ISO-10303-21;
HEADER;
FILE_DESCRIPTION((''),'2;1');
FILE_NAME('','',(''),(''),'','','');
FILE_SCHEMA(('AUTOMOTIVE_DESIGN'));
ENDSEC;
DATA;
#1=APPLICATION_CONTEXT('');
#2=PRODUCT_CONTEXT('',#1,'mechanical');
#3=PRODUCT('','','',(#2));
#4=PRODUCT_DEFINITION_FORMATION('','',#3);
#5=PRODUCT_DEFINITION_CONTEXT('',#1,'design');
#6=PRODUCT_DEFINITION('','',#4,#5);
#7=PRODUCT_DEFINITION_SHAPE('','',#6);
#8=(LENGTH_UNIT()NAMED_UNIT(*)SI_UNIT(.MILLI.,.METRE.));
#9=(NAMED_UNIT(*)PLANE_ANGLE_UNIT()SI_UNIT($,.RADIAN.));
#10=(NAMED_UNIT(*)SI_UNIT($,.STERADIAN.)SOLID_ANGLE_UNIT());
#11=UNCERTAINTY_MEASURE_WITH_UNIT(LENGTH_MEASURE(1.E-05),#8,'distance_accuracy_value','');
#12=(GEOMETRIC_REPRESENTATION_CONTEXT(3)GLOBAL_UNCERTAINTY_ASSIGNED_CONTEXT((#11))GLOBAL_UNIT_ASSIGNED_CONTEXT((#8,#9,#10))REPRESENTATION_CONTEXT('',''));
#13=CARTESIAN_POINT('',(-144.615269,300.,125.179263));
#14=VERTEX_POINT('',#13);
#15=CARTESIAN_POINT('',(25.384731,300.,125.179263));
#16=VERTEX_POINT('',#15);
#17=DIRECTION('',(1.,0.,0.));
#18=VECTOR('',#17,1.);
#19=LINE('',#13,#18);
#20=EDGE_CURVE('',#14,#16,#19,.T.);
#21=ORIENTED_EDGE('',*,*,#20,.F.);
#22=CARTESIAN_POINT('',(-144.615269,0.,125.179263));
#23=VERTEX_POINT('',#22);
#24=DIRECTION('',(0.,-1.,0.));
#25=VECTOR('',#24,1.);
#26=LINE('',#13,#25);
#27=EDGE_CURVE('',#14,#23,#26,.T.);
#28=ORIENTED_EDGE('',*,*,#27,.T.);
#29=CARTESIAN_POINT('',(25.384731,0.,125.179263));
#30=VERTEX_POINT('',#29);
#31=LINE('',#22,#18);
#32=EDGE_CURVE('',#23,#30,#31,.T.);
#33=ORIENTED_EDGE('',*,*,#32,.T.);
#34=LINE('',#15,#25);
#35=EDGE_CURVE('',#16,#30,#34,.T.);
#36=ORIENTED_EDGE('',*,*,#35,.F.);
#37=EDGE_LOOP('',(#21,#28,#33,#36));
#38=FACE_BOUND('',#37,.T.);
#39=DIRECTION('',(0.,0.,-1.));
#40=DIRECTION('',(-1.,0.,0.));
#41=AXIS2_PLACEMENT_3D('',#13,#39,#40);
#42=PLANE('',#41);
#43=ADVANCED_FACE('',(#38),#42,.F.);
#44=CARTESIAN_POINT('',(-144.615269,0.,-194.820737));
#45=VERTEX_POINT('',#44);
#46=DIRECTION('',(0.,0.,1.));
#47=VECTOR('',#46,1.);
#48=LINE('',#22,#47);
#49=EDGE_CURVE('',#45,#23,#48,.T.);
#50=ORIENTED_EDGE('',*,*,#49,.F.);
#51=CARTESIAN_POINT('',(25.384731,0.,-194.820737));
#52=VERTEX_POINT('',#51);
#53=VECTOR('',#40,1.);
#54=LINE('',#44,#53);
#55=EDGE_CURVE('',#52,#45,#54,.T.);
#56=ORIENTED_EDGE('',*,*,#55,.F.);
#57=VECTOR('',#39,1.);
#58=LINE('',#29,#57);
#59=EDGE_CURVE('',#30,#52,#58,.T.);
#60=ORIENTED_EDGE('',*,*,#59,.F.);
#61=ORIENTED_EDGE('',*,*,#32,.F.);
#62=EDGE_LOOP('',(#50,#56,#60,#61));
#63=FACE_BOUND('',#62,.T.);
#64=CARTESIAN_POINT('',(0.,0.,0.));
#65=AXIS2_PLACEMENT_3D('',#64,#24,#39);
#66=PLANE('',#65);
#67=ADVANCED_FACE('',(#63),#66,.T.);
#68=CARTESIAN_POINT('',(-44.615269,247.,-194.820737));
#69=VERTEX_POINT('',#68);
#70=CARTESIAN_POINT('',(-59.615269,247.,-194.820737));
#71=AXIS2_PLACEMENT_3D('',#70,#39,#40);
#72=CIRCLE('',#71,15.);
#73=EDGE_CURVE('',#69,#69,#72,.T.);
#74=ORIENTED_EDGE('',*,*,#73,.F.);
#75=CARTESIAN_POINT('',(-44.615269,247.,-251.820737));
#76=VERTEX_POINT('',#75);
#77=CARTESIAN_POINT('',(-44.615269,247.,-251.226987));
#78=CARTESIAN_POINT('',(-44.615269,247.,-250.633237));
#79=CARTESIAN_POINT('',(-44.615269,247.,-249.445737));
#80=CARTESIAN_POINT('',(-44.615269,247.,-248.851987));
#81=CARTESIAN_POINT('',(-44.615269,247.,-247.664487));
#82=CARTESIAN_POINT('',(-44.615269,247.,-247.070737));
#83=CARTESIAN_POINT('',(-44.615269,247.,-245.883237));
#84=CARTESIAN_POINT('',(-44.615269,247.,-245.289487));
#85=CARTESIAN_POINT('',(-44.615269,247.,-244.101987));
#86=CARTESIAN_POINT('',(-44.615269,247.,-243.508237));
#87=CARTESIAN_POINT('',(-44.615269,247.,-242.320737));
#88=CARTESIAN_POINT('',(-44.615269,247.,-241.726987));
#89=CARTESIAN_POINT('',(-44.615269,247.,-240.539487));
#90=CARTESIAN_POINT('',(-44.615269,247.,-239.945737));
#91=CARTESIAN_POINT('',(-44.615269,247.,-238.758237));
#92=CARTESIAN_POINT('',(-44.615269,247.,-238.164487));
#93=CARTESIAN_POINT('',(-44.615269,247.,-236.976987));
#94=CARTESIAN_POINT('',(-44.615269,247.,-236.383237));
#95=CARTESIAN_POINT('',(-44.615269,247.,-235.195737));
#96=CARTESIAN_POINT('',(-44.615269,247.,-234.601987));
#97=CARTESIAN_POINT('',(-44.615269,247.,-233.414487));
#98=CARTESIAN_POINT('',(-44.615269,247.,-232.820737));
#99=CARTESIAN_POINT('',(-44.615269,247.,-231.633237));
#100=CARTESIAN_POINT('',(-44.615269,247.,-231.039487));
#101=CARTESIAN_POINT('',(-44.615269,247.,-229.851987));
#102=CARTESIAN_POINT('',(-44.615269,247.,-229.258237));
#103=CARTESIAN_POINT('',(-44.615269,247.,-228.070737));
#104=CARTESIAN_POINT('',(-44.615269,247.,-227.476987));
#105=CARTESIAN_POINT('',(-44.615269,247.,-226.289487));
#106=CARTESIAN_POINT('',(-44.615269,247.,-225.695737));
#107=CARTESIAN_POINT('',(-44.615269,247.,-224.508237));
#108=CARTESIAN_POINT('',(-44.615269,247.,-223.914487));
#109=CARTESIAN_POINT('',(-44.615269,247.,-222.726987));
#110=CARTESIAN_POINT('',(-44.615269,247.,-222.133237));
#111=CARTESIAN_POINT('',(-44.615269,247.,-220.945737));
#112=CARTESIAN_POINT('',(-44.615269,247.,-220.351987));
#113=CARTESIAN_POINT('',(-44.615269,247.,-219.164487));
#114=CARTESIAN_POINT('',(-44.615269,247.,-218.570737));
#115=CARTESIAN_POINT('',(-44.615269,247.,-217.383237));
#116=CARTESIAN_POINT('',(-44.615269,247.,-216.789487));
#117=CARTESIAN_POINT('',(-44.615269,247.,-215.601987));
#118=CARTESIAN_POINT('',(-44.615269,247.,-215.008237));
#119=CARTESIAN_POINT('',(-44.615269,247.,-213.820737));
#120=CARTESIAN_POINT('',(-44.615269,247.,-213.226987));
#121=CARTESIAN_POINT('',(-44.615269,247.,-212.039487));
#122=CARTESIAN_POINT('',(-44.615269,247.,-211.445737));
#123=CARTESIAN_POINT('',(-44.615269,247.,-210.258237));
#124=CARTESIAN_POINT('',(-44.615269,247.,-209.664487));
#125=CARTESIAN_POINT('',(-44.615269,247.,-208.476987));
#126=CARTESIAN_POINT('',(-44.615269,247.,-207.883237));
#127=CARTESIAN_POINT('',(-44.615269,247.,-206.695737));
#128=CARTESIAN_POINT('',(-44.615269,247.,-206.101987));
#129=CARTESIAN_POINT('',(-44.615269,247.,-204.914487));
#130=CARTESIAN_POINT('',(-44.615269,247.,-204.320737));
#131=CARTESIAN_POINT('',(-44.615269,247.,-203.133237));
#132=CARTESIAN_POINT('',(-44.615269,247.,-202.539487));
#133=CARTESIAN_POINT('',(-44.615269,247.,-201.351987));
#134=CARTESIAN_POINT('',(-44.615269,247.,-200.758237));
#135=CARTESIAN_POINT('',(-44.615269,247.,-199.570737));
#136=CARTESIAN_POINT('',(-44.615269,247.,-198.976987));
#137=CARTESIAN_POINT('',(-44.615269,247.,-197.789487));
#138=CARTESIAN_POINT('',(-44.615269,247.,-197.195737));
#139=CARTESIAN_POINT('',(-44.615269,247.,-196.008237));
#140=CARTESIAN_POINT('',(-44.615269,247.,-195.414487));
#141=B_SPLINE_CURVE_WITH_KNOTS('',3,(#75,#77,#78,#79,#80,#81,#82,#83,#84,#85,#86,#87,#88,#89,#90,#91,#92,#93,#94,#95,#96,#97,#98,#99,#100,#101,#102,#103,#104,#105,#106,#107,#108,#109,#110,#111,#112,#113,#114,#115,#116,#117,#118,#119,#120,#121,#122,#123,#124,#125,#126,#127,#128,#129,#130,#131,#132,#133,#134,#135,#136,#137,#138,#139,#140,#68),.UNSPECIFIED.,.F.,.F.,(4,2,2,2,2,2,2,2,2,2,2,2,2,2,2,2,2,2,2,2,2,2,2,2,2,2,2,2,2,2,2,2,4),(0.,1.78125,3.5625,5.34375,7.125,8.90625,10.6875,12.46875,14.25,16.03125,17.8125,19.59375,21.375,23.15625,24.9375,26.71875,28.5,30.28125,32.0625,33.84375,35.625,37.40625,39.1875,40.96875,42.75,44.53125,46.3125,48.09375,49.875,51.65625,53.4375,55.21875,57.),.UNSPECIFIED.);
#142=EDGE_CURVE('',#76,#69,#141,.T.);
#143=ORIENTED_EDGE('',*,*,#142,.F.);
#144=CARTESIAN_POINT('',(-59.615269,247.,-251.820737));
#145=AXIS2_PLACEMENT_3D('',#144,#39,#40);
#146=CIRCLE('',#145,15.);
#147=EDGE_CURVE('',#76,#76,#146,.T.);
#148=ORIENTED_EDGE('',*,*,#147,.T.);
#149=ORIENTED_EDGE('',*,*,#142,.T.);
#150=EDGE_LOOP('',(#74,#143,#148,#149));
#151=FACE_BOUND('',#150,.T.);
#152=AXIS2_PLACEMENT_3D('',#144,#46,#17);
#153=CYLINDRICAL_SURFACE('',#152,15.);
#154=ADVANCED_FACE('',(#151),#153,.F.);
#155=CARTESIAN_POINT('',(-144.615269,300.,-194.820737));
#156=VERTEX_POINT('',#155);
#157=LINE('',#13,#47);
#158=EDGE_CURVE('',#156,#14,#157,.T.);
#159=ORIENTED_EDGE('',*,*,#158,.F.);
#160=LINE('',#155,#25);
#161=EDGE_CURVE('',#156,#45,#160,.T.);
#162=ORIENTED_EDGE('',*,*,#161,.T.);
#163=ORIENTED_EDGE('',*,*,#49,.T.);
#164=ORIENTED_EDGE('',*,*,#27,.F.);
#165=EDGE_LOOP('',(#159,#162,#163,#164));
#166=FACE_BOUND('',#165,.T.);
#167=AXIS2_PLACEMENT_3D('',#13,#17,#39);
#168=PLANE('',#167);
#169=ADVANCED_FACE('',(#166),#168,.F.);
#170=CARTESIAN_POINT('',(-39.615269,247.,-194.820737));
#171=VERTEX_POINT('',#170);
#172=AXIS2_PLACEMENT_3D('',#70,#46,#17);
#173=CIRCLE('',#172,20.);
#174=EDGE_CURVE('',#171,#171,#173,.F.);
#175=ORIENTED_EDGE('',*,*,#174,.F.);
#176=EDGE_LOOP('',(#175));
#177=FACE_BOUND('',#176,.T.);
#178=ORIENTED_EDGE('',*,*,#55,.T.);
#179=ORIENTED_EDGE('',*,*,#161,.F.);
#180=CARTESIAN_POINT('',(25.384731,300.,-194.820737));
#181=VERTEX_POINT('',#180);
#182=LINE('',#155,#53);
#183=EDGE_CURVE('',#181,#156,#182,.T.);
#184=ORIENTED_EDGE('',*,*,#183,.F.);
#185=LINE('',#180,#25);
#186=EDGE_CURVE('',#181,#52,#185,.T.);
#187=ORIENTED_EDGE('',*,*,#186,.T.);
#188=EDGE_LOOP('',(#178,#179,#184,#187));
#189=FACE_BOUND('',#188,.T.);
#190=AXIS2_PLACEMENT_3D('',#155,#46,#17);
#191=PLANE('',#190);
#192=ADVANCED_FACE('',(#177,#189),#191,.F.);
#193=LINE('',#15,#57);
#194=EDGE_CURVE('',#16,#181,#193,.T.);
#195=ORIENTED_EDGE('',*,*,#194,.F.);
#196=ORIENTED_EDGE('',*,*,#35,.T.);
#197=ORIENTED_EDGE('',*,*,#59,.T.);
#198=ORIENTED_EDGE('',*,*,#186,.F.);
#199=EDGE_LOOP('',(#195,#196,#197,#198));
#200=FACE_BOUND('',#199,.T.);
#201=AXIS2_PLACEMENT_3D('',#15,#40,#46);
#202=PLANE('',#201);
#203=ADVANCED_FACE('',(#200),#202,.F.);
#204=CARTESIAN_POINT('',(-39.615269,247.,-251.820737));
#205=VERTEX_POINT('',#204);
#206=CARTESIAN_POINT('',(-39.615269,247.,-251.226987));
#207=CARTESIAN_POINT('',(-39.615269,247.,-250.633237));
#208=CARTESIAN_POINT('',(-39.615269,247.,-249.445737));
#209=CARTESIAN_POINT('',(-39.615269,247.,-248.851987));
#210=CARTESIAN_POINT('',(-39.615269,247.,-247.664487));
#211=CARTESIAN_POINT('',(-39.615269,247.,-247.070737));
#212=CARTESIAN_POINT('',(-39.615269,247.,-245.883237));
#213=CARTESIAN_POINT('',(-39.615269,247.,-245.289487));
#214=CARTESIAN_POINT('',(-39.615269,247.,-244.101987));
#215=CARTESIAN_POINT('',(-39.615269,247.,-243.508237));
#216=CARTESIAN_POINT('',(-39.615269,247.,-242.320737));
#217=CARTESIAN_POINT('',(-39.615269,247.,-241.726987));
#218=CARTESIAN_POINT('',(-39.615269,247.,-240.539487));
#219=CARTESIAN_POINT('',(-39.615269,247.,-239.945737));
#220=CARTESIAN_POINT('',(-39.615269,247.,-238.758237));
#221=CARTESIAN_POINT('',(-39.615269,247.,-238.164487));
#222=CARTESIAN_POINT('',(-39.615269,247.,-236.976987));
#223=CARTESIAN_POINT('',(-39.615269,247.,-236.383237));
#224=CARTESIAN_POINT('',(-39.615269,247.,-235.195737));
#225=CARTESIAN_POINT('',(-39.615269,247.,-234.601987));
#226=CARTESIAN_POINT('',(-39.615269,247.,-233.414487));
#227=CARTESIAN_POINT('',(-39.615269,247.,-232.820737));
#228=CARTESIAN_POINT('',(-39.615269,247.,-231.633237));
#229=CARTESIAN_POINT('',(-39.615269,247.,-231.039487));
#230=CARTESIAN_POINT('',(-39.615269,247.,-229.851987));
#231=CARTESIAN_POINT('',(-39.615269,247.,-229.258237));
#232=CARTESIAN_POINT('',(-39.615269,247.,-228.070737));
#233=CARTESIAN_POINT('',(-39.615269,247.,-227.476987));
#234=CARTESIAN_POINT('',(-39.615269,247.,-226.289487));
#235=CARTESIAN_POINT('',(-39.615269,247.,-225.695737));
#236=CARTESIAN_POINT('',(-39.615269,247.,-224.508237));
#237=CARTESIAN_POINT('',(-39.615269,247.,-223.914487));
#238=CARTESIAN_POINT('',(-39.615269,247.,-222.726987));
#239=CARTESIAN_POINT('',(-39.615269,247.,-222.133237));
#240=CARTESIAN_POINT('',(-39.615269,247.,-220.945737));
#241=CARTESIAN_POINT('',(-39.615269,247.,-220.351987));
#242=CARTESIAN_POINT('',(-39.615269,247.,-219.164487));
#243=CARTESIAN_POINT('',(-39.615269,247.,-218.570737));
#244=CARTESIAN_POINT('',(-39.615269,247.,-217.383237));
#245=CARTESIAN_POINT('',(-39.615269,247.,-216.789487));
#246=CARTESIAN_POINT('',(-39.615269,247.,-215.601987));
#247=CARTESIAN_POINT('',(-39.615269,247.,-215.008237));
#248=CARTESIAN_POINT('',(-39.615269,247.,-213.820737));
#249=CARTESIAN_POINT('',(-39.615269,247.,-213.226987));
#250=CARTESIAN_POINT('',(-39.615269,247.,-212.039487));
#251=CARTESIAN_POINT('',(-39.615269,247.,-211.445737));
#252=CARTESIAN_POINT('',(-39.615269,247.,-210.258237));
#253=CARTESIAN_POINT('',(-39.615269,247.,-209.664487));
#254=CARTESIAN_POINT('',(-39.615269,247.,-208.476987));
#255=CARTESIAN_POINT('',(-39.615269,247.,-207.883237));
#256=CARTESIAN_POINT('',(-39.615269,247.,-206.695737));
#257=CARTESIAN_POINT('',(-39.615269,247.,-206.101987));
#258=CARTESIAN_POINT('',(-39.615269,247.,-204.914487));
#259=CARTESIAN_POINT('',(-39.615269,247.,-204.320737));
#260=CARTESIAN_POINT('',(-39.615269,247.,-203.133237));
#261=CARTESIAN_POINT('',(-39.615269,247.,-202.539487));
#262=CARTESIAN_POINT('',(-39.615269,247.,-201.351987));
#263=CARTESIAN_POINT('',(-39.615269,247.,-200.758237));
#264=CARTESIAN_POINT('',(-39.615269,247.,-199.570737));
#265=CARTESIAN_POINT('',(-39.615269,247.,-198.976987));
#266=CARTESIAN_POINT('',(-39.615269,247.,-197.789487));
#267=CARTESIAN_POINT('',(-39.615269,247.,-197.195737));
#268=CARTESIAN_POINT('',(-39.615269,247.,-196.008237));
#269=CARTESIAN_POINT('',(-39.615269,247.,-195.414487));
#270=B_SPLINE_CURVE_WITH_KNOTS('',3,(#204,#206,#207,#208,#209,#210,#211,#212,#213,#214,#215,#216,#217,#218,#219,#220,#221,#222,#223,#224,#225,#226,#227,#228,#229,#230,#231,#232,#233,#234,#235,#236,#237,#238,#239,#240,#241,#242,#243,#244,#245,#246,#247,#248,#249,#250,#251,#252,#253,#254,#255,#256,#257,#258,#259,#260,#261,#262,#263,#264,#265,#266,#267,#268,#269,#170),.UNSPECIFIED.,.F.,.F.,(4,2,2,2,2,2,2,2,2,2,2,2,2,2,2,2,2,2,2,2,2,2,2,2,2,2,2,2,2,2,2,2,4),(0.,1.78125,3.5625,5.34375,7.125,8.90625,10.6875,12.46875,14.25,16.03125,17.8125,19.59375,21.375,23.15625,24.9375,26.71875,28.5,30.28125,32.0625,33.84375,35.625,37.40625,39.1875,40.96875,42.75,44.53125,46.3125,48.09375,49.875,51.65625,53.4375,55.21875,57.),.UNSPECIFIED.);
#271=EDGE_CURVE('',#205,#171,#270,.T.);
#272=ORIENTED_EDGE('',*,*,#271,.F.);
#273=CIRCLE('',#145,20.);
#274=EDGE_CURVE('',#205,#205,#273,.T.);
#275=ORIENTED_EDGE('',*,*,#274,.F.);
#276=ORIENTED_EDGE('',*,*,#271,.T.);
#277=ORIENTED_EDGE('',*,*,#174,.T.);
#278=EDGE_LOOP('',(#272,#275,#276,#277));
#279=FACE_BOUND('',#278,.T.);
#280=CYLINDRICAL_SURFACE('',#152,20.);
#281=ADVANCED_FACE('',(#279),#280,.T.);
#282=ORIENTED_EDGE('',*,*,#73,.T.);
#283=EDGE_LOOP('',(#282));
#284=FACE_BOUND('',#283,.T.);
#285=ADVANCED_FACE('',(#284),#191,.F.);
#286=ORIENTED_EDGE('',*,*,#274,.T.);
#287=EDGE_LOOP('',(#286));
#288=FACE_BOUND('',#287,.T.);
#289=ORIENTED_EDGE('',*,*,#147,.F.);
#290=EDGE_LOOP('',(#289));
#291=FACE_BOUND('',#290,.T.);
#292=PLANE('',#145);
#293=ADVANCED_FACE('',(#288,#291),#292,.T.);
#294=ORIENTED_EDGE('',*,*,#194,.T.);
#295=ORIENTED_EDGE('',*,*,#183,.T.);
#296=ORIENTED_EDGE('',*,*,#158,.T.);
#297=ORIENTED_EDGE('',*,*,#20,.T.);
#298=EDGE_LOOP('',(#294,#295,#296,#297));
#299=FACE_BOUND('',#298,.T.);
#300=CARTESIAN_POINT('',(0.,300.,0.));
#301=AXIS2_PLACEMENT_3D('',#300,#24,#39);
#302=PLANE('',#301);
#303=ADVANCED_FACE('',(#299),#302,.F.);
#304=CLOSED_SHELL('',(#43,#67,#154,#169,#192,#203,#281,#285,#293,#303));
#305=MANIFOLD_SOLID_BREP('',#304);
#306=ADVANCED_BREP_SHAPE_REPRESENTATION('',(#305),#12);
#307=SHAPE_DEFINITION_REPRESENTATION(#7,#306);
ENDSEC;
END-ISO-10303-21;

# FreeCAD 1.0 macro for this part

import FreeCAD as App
import Part
import Sketcher
from FreeCAD import Vector


def add_polygon(sketch, points):
    """Adds a closed chain of lines whose ends are joined by coincident constraints."""
    first, n = sketch.GeometryCount, len(points)
    for a, b in zip(points, points[1:] + points[:1]):
        sketch.addGeometry(Part.LineSegment(App.Vector(*a, 0), App.Vector(*b, 0)), False)
    for i in range(n):
        sketch.addConstraint(Sketcher.Constraint("Coincident", first + i, 2, first + (i + 1) % n, 1))

doc = App.newDocument("Part")
body = doc.addObject("PartDesign::Body", "Body")

sketch1 = doc.addObject("Sketcher::SketchObject", "Sketch")
body.addObject(sketch1)
sketch1.AttachmentSupport = (doc.XZ_Plane, [""])
sketch1.MapMode = "FlatFace"
add_polygon(sketch1, [(-145, -195), (-145, 125), (25, 125), (25, -195)])
sketch1.addConstraint([
    Sketcher.Constraint("Vertical", 0),
    Sketcher.Constraint("Horizontal", 1),
    Sketcher.Constraint("Vertical", 2),
    Sketcher.Constraint("Horizontal", 3),
    Sketcher.Constraint("DistanceX", 1, 1, 1, 2, 170.0),
    Sketcher.Constraint("DistanceY", 0, 1, 0, 2, 320.0),
    Sketcher.Constraint("DistanceX", 0, 2, -1, 1, 144.615269),
    Sketcher.Constraint("DistanceY", -1, 1, 0, 2, 125.179263),
])
pad1 = doc.addObject("PartDesign::Pad", "Pad")
body.addObject(pad1)
pad1.Profile = sketch1
pad1.Length = 300
pad1.Reversed = True

sketch2 = doc.addObject("Sketcher::SketchObject", "Sketch001")
body.addObject(sketch2)
sketch2.AttachmentSupport = (doc.XY_Plane, [""])
sketch2.MapMode = "FlatFace"
sketch2.AttachmentOffset = App.Placement(Vector(0, 0, -194.820737), App.Rotation())
sketch2.addGeometry([
    Part.Circle(Vector(-60, 247, 0), Vector(0, 0, 1), 20),
    Part.Circle(Vector(-60, 247, 0), Vector(0, 0, 1), 15),
], False)
sketch2.addConstraint([
    Sketcher.Constraint("Coincident", 1, 3, 0, 3),
    Sketcher.Constraint("Diameter", 0, 40.0),
    Sketcher.Constraint("Diameter", 1, 30.0),
    Sketcher.Constraint("DistanceY", -1, 1, 0, 3, 247.0),
    Sketcher.Constraint("DistanceX", 0, 3, -1, 1, 59.615269),
])
pad2 = doc.addObject("PartDesign::Pad", "Pad001")
body.addObject(pad2)
pad2.Profile = sketch2
pad2.Length = 57
pad2.Reversed = True

doc.recompute()
